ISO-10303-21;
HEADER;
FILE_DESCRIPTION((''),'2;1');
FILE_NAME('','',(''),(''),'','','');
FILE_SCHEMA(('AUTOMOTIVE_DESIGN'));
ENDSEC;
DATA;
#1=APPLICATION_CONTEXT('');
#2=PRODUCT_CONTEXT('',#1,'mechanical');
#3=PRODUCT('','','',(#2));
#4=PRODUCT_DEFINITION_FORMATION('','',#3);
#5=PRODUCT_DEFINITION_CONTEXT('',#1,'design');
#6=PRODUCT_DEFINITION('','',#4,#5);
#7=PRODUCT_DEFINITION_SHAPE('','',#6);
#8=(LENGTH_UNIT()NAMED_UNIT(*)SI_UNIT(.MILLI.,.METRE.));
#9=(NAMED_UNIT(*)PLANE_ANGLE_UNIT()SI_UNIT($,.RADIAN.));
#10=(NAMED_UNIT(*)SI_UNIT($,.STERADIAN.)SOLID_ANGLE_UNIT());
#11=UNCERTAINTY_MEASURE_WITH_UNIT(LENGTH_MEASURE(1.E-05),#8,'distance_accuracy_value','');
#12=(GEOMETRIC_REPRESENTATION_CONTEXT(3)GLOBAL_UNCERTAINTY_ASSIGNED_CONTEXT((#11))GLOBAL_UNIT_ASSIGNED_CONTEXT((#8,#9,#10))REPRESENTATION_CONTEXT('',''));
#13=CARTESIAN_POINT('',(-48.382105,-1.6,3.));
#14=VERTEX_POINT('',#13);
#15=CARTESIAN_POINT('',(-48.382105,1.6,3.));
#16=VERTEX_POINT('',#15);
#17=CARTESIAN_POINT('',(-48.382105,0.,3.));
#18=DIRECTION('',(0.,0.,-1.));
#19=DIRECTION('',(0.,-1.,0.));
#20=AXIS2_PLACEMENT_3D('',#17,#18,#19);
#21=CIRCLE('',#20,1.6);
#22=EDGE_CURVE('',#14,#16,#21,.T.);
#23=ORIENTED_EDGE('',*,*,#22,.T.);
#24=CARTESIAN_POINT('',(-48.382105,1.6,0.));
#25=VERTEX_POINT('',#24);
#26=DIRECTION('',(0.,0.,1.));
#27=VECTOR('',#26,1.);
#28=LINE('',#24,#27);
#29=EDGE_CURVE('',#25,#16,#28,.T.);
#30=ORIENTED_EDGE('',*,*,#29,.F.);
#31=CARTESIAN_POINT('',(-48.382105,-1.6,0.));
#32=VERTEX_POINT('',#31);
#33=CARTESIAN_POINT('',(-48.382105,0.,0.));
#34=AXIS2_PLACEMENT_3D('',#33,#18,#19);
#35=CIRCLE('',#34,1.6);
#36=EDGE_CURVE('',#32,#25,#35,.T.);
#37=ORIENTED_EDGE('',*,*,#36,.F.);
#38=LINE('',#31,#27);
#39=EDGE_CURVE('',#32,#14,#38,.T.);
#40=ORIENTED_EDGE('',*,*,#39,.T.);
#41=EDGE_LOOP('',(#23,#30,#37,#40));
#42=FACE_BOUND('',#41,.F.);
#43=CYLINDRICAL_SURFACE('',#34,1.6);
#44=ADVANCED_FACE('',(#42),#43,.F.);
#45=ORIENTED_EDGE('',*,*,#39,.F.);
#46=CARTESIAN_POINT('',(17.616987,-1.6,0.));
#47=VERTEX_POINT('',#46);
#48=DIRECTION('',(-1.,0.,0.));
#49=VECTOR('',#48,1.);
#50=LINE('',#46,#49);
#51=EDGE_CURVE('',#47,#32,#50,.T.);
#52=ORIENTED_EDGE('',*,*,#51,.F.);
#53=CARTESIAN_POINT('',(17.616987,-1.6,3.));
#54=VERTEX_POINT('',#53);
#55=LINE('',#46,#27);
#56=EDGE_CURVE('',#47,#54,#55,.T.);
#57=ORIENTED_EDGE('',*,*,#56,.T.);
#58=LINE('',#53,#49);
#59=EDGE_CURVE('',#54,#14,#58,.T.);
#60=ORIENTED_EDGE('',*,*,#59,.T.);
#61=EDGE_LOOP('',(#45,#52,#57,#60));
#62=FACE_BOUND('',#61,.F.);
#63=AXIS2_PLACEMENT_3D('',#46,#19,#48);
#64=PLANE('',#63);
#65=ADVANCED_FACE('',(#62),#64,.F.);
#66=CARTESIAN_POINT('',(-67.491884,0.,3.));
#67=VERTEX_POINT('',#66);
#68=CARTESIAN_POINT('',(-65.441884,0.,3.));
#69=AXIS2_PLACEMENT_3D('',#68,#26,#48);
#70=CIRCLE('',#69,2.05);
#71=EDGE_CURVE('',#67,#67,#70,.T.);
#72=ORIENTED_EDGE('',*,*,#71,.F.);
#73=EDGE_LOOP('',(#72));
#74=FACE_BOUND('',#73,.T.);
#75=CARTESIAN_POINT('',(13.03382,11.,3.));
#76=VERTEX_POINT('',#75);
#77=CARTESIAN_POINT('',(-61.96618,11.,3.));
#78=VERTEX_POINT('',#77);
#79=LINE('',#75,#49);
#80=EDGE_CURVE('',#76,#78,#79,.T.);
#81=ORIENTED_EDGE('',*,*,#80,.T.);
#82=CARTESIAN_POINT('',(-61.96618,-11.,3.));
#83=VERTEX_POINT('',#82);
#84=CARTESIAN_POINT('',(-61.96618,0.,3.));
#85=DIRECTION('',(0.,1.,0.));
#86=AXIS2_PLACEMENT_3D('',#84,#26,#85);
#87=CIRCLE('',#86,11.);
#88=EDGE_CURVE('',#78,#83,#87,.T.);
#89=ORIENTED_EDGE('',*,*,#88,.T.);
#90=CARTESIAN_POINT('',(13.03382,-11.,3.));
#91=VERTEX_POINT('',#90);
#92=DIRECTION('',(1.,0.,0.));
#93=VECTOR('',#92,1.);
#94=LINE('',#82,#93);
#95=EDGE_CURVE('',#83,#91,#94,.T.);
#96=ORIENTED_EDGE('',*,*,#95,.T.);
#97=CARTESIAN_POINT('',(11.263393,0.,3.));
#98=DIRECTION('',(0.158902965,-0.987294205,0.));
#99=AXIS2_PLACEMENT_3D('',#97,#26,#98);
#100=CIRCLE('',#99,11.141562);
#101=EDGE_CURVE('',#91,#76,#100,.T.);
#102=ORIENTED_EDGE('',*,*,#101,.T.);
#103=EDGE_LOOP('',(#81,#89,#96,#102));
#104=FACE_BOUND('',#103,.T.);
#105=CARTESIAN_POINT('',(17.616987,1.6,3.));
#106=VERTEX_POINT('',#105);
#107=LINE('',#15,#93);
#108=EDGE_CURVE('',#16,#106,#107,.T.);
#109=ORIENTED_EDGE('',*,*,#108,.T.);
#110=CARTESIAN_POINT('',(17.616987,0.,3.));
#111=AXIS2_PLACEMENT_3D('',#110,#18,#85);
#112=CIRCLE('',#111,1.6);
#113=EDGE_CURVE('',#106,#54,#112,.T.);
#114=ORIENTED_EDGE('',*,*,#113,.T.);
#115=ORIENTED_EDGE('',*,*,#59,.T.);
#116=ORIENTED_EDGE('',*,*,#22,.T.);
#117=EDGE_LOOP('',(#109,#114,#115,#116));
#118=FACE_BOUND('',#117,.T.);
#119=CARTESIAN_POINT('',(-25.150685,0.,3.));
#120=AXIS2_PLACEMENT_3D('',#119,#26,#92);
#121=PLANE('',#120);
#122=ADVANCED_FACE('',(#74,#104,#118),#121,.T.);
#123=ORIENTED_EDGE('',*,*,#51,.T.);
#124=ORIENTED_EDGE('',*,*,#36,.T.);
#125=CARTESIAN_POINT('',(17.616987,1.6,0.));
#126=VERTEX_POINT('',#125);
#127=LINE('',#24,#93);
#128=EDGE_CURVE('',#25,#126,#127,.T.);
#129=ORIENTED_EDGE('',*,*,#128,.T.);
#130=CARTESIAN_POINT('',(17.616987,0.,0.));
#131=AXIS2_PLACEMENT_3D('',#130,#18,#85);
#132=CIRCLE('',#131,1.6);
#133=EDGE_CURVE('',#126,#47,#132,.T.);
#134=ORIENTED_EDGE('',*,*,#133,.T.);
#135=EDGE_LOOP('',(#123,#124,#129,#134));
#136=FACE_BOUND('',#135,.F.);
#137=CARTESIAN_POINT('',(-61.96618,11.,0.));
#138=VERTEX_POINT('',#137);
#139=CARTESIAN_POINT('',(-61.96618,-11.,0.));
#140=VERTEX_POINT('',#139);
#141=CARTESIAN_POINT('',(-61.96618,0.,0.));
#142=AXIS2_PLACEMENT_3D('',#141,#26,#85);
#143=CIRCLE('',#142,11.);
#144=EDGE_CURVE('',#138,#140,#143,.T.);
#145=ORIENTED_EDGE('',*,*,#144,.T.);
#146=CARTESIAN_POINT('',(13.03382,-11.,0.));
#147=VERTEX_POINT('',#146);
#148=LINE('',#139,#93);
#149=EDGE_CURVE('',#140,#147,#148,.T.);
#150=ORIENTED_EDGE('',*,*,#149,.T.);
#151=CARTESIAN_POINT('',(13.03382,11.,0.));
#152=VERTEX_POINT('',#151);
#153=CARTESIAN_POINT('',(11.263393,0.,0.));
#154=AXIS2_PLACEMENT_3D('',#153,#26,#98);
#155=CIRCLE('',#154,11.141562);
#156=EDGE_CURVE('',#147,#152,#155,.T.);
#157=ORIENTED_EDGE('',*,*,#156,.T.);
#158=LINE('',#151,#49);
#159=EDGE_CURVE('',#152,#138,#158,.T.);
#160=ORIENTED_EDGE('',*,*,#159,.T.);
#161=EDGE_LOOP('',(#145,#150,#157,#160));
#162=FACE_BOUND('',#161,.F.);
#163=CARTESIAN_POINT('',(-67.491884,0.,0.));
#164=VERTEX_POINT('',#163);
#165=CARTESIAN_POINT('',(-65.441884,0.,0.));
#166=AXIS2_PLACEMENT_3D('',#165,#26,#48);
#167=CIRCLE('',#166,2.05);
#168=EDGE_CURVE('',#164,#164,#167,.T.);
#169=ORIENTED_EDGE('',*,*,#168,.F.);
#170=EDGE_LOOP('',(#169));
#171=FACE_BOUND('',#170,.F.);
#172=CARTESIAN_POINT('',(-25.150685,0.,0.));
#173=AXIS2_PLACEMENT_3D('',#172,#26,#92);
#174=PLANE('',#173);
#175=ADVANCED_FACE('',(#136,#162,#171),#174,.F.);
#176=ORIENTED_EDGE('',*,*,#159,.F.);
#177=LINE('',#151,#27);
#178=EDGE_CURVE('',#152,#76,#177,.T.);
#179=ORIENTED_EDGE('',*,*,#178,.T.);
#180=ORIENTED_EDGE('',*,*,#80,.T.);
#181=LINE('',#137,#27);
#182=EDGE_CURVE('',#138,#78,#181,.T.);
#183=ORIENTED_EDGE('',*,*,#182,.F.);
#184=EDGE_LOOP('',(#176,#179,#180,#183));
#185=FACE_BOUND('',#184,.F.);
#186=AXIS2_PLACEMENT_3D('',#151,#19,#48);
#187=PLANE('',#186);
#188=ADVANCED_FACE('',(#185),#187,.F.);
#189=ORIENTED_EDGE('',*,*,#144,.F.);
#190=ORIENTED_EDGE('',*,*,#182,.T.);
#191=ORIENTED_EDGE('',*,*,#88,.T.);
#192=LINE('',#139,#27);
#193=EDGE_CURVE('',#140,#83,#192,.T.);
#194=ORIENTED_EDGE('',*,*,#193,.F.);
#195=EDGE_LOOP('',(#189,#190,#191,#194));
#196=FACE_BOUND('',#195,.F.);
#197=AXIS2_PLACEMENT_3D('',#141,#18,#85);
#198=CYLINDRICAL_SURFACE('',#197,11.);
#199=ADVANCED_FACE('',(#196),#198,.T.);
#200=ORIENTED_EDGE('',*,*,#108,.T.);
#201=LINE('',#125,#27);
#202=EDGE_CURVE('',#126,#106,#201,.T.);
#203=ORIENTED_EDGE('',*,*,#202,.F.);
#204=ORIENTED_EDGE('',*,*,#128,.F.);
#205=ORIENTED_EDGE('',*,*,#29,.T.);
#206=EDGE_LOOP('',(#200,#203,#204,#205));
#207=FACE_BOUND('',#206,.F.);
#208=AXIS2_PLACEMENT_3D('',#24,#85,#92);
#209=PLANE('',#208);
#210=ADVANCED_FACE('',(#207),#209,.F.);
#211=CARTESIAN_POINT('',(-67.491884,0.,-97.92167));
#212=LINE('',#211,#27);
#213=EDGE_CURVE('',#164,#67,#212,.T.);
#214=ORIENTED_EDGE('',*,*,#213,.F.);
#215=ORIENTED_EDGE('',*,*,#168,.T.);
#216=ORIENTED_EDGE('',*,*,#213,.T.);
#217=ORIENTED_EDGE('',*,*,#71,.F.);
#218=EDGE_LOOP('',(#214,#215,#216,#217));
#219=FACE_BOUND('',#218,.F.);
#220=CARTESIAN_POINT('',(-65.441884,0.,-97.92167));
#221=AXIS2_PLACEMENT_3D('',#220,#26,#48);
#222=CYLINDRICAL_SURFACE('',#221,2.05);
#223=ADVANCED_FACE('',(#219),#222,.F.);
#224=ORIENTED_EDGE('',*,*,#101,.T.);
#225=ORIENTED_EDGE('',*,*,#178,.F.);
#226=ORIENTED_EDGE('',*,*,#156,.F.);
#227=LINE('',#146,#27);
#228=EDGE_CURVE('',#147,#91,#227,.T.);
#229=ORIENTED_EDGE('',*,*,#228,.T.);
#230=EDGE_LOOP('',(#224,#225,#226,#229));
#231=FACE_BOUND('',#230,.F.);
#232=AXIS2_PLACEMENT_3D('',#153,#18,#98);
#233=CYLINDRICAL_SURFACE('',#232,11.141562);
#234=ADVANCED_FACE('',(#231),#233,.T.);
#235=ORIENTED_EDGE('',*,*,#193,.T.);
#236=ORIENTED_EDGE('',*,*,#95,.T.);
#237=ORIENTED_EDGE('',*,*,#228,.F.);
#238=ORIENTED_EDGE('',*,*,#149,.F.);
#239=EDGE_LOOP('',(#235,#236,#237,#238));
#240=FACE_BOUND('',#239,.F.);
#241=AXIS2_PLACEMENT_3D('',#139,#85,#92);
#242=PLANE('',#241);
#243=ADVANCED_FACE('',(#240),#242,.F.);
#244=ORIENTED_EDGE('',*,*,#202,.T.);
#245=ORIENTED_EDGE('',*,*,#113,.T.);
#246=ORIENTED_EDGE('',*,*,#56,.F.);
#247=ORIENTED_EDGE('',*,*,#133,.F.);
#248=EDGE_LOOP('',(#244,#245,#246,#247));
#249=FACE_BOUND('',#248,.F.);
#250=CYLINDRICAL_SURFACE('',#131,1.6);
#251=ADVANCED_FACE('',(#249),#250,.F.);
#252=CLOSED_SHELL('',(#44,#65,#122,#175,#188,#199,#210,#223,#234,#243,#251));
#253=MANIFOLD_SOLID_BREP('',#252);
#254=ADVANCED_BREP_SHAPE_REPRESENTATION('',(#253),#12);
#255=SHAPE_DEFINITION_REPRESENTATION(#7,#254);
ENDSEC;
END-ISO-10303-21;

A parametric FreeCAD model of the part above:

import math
import FreeCAD as App
import Part
import Sketcher
Q = App.Units.Quantity

doc = App.newDocument("Part")
params = doc.addObject("Spreadsheet::Sheet", "Params")
for row, (alias, value) in enumerate([
    ("sketch1_radius", "11 mm"),
    ("sketch1_radius2", "1.6 mm"),
    ("sketch1_width", "75 mm"),
    ("pad1_length", "3 mm"),
    ("sketch2_diameter", "4.1 mm"),
    ("hole_diameter", "4.1 mm"),
], start=1):
    params.set(f"A{row}", alias)
    params.set(f"B{row}", "=" + value)
    params.setAlias(f"B{row}", alias)

body = doc.addObject("PartDesign::Body", "Body")

# Sketch on XY plane
sketch1 = doc.addObject("Sketcher::SketchObject", "Sketch")
body.addObject(sketch1)
sketch1.AttachmentSupport = (doc.XY_Plane, [""])
sketch1.MapMode = "FlatFace"
sketch1.addGeometry([
    Part.LineSegment(App.Vector(13, 11, 0), App.Vector(-62, 11, 0)),  # 0
    Part.ArcOfCircle(Part.Circle(App.Vector(-62, 0, 0), App.Vector(0, 0, 1), 11), math.radians(90), math.radians(270)),  # 1
    Part.LineSegment(App.Vector(-62, -11, 0), App.Vector(13, -11, 0)),  # 2
    Part.ArcOfCircle(Part.Circle(App.Vector(11.3, 0, 0), App.Vector(0, 0, 1), 11.1), math.radians(-81), math.radians(81)),  # 3
    Part.LineSegment(App.Vector(17.6, -1.6, 0), App.Vector(-48.4, -1.6, 0)),  # 4
    Part.ArcOfCircle(Part.Circle(App.Vector(-48.4, 0, 0), App.Vector(0, 0, 1), 1.6), math.radians(90), math.radians(270)),  # 5
    Part.LineSegment(App.Vector(-48.4, 1.6, 0), App.Vector(17.6, 1.6, 0)),  # 6
    Part.ArcOfCircle(Part.Circle(App.Vector(17.6, 0, 0), App.Vector(0, 0, 1), 1.6), math.radians(-90), math.radians(90)),  # 7
], False)
sketch1.addConstraint([
    Sketcher.Constraint("Tangent", 0, 2, 1, 1),
    Sketcher.Constraint("Tangent", 1, 2, 2, 1),
    Sketcher.Constraint("Coincident", 2, 2, 3, 1),
    Sketcher.Constraint("Coincident", 3, 2, 0, 1),
    Sketcher.Constraint("Tangent", 4, 2, 5, 2),
    Sketcher.Constraint("Tangent", 5, 1, 6, 1),
    Sketcher.Constraint("Tangent", 6, 2, 7, 2),
    Sketcher.Constraint("Tangent", 7, 1, 4, 1),
    Sketcher.Constraint("Horizontal", 0),
    Sketcher.Constraint("Horizontal", 2),
    Sketcher.Constraint("Horizontal", 4),
    Sketcher.Constraint("Horizontal", 6),
    Sketcher.Constraint("Symmetric", 2, 2, 3, 2, -1),
    Sketcher.Constraint("PointOnObject", 5, 3, -1),
    Sketcher.Constraint("Radius", 1, Q("11 mm")),
    Sketcher.Constraint("Radius", 5, Q("1.6 mm")),
    Sketcher.Constraint("DistanceX", 0, 2, 0, 1, Q("75 mm")),
    Sketcher.Constraint("Radius", 3, Q("11.141562 mm")),
    Sketcher.Constraint("DistanceX", 5, 3, 3, 3, Q("59.645498 mm")),
    Sketcher.Constraint("DistanceX", 4, 2, 4, 1, Q("65.999092 mm")),
    Sketcher.Constraint("DistanceX", 1, 3, -1, 1, Q("61.96618 mm")),
])
sketch1.setExpression("Constraints[14]", "Params.sketch1_radius")
sketch1.setExpression("Constraints[15]", "Params.sketch1_radius2")
sketch1.setExpression("Constraints[16]", "Params.sketch1_width")
pad1 = doc.addObject("PartDesign::Pad", "Pad")
body.addObject(pad1)
pad1.Profile = sketch1
pad1.setExpression("Length", "Params.pad1_length")

# Sketch on XY plane
sketch2 = doc.addObject("Sketcher::SketchObject", "Sketch001")
body.addObject(sketch2)
sketch2.AttachmentSupport = (doc.XY_Plane, [""])
sketch2.MapMode = "FlatFace"
sketch2.addGeometry(Part.Circle(App.Vector(-65.4, 0, 0), App.Vector(0, 0, 1), 2), False)
sketch2.addConstraint([
    Sketcher.Constraint("PointOnObject", 0, 3, -1),
    Sketcher.Constraint("Diameter", 0, Q("4.1 mm")),
    Sketcher.Constraint("DistanceX", 0, 3, -1, 1, Q("65.441884 mm")),
])
sketch2.setExpression("Constraints[1]", "Params.sketch2_diameter")
doc.recompute()
hole = doc.addObject("PartDesign::Hole", "Hole")
body.addObject(hole)
hole.Profile = sketch2
hole.ThreadType = "None"
hole.setExpression("Diameter", "Params.hole_diameter")
hole.DepthType = "ThroughAll"
hole.Reversed = True

doc.recompute()
